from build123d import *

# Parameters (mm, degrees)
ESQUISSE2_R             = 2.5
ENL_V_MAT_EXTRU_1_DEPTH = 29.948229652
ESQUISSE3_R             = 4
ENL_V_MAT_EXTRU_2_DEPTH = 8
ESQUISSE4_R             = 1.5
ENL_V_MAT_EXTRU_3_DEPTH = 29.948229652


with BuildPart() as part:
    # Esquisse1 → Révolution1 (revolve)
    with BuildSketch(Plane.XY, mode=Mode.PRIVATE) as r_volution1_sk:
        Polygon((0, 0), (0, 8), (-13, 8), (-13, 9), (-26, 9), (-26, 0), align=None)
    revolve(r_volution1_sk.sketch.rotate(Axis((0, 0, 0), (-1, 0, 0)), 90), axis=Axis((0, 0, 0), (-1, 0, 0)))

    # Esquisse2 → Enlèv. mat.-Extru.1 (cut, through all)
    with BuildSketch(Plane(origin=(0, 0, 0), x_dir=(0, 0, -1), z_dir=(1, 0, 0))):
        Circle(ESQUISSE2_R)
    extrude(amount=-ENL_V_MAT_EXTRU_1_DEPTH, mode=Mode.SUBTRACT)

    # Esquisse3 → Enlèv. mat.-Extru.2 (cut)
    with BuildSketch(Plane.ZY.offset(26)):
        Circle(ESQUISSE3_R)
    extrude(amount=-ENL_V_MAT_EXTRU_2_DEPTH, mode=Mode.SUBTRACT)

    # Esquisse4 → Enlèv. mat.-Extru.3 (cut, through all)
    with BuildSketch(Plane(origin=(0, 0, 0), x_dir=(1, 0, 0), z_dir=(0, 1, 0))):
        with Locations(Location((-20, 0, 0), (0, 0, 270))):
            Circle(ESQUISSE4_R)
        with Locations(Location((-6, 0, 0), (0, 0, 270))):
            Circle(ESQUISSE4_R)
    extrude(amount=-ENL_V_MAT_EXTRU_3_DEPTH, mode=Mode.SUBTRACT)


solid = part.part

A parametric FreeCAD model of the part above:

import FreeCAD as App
import Part
import Sketcher
Q = App.Units.Quantity

doc = App.newDocument("Part")
params = doc.addObject("Spreadsheet::Sheet", "Params")
for row, (alias, value) in enumerate([
    ("sketch1_width", "13 mm"),
    ("sketch1_height", "8 mm"),
    ("sketch1_height2", "1 mm"),
    ("revolution_angle", "360 deg"),
    ("sketch2_diameter", "5 mm"),
    ("sketch3_diameter", "8 mm"),
    ("pocket2_length", "8 mm"),
    ("sketch4_diameter", "3 mm"),
], start=1):
    params.set(f"A{row}", alias)
    params.set(f"B{row}", "=" + value)
    params.setAlias(f"B{row}", alias)

body = doc.addObject("PartDesign::Body", "Body")

# Sketch on XY plane
sketch1 = body.newObject("Sketcher::SketchObject", "Sketch")
sketch1.AttachmentSupport = (doc.getObject("XY_Plane"), [""])
sketch1.MapMode = "FlatFace"
sketch1.addGeometry(Part.LineSegment(App.Vector(0, 0, 0), App.Vector(0, 8, 0)), False)
sketch1.addGeometry(Part.LineSegment(App.Vector(0, 8, 0), App.Vector(-13, 8, 0)), False)
sketch1.addGeometry(Part.LineSegment(App.Vector(-13, 8, 0), App.Vector(-13, 9, 0)), False)
sketch1.addGeometry(Part.LineSegment(App.Vector(-13, 9, 0), App.Vector(-26, 9, 0)), False)
sketch1.addGeometry(Part.LineSegment(App.Vector(-26, 9, 0), App.Vector(-26, 0, 0)), False)
sketch1.addGeometry(Part.LineSegment(App.Vector(-26, 0, 0), App.Vector(0, 0, 0)), False)
sketch1.addConstraint(Sketcher.Constraint("Coincident", 0, 2, 1, 1))
sketch1.addConstraint(Sketcher.Constraint("Coincident", 1, 2, 2, 1))
sketch1.addConstraint(Sketcher.Constraint("Coincident", 2, 2, 3, 1))
sketch1.addConstraint(Sketcher.Constraint("Coincident", 3, 2, 4, 1))
sketch1.addConstraint(Sketcher.Constraint("Coincident", 4, 2, 5, 1))
sketch1.addConstraint(Sketcher.Constraint("Coincident", 5, 2, 0, 1))
sketch1.addConstraint(Sketcher.Constraint("Vertical", 0))
sketch1.addConstraint(Sketcher.Constraint("Horizontal", 1))
sketch1.addConstraint(Sketcher.Constraint("Vertical", 2))
sketch1.addConstraint(Sketcher.Constraint("Horizontal", 3))
sketch1.addConstraint(Sketcher.Constraint("Vertical", 4))
sketch1.addConstraint(Sketcher.Constraint("Horizontal", 5))
sketch1.addConstraint(Sketcher.Constraint("Coincident", 5, 2, -1, 1))
sketch1.addConstraint(Sketcher.Constraint("Equal", 1, 3))
sketch1.addConstraint(Sketcher.Constraint("DistanceX", 1, 2, 1, 1, Q("13 mm")))
sketch1.addConstraint(Sketcher.Constraint("DistanceY", 0, 1, 0, 2, Q("8 mm")))
sketch1.addConstraint(Sketcher.Constraint("DistanceY", 2, 1, 2, 2, Q("1 mm")))
sketch1.setExpression("Constraints[14]", "Params.sketch1_width")
sketch1.setExpression("Constraints[15]", "Params.sketch1_height")
sketch1.setExpression("Constraints[16]", "Params.sketch1_height2")
revolution = body.newObject("PartDesign::Revolution", "Revolution")
revolution.Profile = sketch1
revolution.ReferenceAxis = (sketch1, ["H_Axis"])
revolution.setExpression("Angle", "Params.revolution_angle")

# Sketch on YZ plane
sketch2 = body.newObject("Sketcher::SketchObject", "Sketch001")
sketch2.AttachmentSupport = (doc.getObject("YZ_Plane"), [""])
sketch2.MapMode = "FlatFace"
sketch2.addGeometry(Part.Circle(App.Vector(0, 0, 0), App.Vector(0, 0, 1), 2.5), False)
sketch2.addConstraint(Sketcher.Constraint("Coincident", 0, 3, -1, 1))
sketch2.addConstraint(Sketcher.Constraint("Diameter", 0, Q("5 mm")))
sketch2.setExpression("Constraints[1]", "Params.sketch2_diameter")
pocket1 = body.newObject("PartDesign::Pocket", "Pocket")
pocket1.Profile = sketch2
pocket1.Type = "ThroughAll"

# Sketch on YZ plane
sketch3 = body.newObject("Sketcher::SketchObject", "Sketch002")
sketch3.AttachmentSupport = (doc.getObject("YZ_Plane"), [""])
sketch3.MapMode = "FlatFace"
sketch3.AttachmentOffset = App.Placement(App.Vector(0, 0, -26), App.Rotation())
sketch3.addGeometry(Part.Circle(App.Vector(0, 0, 0), App.Vector(0, 0, 1), 4), False)
sketch3.addConstraint(Sketcher.Constraint("Coincident", 0, 3, -1, 1))
sketch3.addConstraint(Sketcher.Constraint("Diameter", 0, Q("8 mm")))
sketch3.setExpression("Constraints[1]", "Params.sketch3_diameter")
pocket2 = body.newObject("PartDesign::Pocket", "Pocket001")
pocket2.Profile = sketch3
pocket2.setExpression("Length", "Params.pocket2_length")
pocket2.Reversed = True

# Sketch on XZ plane
sketch4 = body.newObject("Sketcher::SketchObject", "Sketch003")
sketch4.AttachmentSupport = (doc.getObject("XZ_Plane"), [""])
sketch4.MapMode = "FlatFace"
sketch4.addGeometry(Part.Circle(App.Vector(-20, 0, 0), App.Vector(0, 0, 1), 1.5), False)
sketch4.addGeometry(Part.Circle(App.Vector(-6, 0, 0), App.Vector(0, 0, 1), 1.5), False)
sketch4.addConstraint(Sketcher.Constraint("Equal", 0, 1))
sketch4.addConstraint(Sketcher.Constraint("PointOnObject", 0, 3, -1))
sketch4.addConstraint(Sketcher.Constraint("PointOnObject", 1, 3, -1))
sketch4.addConstraint(Sketcher.Constraint("Diameter", 0, Q("3 mm")))
sketch4.addConstraint(Sketcher.Constraint("DistanceX", 0, 3, -1, 1, Q("20 mm")))
sketch4.addConstraint(Sketcher.Constraint("DistanceX", 1, 3, -1, 1, Q("6 mm")))
sketch4.setExpression("Constraints[3]", "Params.sketch4_diameter")
pocket3 = body.newObject("PartDesign::Pocket", "Pocket002")
pocket3.Profile = sketch4
pocket3.Type = "ThroughAll"
pocket3.Reversed = True

doc.recompute()
